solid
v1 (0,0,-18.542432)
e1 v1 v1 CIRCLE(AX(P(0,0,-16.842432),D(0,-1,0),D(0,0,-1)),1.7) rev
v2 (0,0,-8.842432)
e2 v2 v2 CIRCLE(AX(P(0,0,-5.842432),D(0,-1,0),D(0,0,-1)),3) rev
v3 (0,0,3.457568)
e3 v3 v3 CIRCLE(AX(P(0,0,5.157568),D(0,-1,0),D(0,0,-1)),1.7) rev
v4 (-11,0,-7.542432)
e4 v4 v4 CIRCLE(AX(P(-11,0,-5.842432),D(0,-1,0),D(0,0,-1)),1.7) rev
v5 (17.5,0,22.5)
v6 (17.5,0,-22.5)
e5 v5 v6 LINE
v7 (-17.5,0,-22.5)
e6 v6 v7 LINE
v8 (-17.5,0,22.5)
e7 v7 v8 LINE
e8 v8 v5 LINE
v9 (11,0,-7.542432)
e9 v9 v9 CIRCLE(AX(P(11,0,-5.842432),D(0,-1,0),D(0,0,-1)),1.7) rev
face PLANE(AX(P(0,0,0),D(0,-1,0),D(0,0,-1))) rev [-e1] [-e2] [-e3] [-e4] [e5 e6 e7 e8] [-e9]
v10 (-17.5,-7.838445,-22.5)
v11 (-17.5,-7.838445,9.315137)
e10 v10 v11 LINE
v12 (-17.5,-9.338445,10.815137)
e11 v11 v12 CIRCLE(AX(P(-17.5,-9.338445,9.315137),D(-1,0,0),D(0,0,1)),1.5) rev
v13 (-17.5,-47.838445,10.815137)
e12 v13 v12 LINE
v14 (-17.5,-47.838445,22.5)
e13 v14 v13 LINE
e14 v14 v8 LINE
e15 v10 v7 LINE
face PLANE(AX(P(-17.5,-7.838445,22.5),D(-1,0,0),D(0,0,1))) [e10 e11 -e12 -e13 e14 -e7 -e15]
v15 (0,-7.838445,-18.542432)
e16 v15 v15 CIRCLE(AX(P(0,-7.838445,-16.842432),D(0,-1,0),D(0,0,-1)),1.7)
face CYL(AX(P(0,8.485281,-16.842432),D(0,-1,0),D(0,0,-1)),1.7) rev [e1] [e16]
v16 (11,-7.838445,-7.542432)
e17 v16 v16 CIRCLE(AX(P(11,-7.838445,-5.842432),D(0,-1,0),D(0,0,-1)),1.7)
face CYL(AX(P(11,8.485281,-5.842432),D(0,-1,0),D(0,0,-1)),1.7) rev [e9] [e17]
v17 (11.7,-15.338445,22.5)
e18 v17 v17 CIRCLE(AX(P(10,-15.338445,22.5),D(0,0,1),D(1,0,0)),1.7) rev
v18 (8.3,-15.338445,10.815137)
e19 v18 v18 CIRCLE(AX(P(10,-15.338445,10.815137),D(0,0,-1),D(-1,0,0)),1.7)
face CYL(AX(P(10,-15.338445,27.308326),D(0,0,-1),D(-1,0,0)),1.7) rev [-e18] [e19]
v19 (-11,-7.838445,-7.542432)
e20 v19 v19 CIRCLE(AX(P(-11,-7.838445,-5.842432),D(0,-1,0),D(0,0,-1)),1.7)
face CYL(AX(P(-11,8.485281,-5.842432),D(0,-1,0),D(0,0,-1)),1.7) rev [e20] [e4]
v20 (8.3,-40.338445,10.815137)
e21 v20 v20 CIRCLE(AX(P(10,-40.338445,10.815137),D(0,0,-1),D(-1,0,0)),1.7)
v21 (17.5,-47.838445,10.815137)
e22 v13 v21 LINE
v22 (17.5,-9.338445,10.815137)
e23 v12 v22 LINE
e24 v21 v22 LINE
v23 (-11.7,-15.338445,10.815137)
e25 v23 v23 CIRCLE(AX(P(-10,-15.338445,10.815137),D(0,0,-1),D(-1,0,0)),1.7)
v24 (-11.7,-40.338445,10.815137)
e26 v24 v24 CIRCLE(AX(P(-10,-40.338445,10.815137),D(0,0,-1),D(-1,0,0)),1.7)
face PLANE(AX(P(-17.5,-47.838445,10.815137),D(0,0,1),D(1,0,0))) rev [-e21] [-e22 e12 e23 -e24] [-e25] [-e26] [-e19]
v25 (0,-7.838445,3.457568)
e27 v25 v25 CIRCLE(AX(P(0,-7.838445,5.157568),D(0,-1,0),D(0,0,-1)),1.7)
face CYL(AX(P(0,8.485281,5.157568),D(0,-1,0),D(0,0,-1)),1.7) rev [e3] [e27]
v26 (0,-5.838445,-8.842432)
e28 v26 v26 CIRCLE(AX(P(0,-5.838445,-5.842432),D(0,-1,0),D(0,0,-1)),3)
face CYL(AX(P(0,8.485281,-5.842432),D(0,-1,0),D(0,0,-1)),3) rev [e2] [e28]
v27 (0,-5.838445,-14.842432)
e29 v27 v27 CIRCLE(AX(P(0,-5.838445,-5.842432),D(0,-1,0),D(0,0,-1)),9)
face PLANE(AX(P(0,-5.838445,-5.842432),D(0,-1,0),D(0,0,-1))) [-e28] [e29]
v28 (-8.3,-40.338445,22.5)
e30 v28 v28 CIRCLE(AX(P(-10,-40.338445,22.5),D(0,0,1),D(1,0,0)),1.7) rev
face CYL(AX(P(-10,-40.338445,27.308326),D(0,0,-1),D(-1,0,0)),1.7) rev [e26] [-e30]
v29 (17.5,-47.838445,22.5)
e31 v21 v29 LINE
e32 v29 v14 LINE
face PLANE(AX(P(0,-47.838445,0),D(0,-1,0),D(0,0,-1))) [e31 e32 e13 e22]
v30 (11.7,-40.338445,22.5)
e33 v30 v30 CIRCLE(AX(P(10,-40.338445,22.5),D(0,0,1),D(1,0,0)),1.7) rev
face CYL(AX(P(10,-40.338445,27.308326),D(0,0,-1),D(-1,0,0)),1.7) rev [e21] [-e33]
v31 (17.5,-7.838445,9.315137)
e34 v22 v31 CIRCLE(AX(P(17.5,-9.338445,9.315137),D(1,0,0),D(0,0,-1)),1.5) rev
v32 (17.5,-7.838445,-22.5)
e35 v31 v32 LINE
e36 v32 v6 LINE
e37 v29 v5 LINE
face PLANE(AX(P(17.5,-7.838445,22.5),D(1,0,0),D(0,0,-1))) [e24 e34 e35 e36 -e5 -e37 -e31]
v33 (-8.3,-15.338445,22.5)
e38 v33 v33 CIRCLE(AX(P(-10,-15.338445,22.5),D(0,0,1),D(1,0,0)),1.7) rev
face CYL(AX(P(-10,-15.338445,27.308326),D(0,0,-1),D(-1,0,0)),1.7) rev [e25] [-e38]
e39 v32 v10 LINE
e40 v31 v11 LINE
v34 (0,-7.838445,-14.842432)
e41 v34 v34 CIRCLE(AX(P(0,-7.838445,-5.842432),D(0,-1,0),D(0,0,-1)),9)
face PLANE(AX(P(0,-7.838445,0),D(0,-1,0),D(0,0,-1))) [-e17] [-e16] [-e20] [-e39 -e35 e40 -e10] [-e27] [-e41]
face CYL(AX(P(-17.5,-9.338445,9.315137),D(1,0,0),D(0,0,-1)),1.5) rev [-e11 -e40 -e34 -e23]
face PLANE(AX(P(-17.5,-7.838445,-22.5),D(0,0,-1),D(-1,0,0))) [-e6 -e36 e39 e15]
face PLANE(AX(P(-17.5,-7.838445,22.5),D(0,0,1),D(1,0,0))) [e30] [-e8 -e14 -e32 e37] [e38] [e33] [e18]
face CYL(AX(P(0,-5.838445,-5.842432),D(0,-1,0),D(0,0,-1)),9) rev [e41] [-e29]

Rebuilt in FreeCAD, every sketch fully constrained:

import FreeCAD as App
import Part
import Sketcher

V = App.Vector
Q = App.Units.Quantity


def edges_at(feature, points):
    """Names of the edges that pass closest to the given points."""
    edges = feature.Shape.Edges
    near = lambda p: min(range(len(edges)), key=lambda i: edges[i].distToShape(Part.Vertex(*p))[0])
    return sorted({f"Edge{near(p) + 1}" for p in points})

doc = App.newDocument("Part")
body = doc.addObject("PartDesign::Body", "Body")

sketch1 = body.newObject("Sketcher::SketchObject", "Sketch")
sketch1.AttachmentSupport = (doc.getObject("XZ_Plane"), [""])
sketch1.MapMode = "FlatFace"
sketch1.addGeometry([
    Part.LineSegment(V(-17.5, -22.5, 0), V(-17.5, 22.5, 0)),
    Part.LineSegment(V(-17.5, 22.5, 0), V(17.5, 22.5, 0)),
    Part.LineSegment(V(17.5, 22.5, 0), V(17.5, -22.5, 0)),
    Part.LineSegment(V(17.5, -22.5, 0), V(-17.5, -22.5, 0)),
], False)
sketch1.addConstraint([
    Sketcher.Constraint("Coincident", 0, 2, 1, 1),
    Sketcher.Constraint("Coincident", 1, 2, 2, 1),
    Sketcher.Constraint("Coincident", 2, 2, 3, 1),
    Sketcher.Constraint("Coincident", 3, 2, 0, 1),
    Sketcher.Constraint("Vertical", 0),
    Sketcher.Constraint("Horizontal", 1),
    Sketcher.Constraint("Vertical", 2),
    Sketcher.Constraint("Horizontal", 3),
    Sketcher.Constraint("Symmetric", 0, 2, 2, 2, -1, 1),
    Sketcher.Constraint("DistanceX", 1, 1, 1, 2, Q("35 mm")),
    Sketcher.Constraint("DistanceY", 0, 1, 0, 2, Q("45 mm")),
])
pad1 = body.newObject("PartDesign::Pad", "Pad")
pad1.Profile = sketch1
pad1.Length = 7.838445

sketch2 = body.newObject("Sketcher::SketchObject", "Sketch001")
sketch2.AttachmentSupport = (doc.getObject("XZ_Plane"), [""])
sketch2.MapMode = "FlatFace"
sketch2.AttachmentOffset = App.Placement(V(0, 0, 7.838445), App.Rotation())
sketch2.addGeometry([
    Part.LineSegment(V(-17.5, 22.5, 0), V(-17.5, 10.815137, 0)),
    Part.LineSegment(V(-17.5, 10.815137, 0), V(17.5, 10.815137, 0)),
    Part.LineSegment(V(17.5, 10.815137, 0), V(17.5, 22.5, 0)),
    Part.LineSegment(V(17.5, 22.5, 0), V(-17.5, 22.5, 0)),
], False)
sketch2.addConstraint([
    Sketcher.Constraint("Coincident", 0, 2, 1, 1),
    Sketcher.Constraint("Coincident", 1, 2, 2, 1),
    Sketcher.Constraint("Coincident", 2, 2, 3, 1),
    Sketcher.Constraint("Coincident", 3, 2, 0, 1),
    Sketcher.Constraint("Vertical", 0),
    Sketcher.Constraint("Horizontal", 1),
    Sketcher.Constraint("Vertical", 2),
    Sketcher.Constraint("Horizontal", 3),
    Sketcher.Constraint("DistanceX", 1, 1, 1, 2, Q("35 mm")),
    Sketcher.Constraint("DistanceX", 0, 2, -1, 1, Q("17.5 mm")),
    Sketcher.Constraint("DistanceY", -1, 1, 2, 2, Q("22.5 mm")),
    Sketcher.Constraint("DistanceY", 0, 2, 0, 1, Q("11.684863 mm")),
])
pad2 = body.newObject("PartDesign::Pad", "Pad001")
pad2.Profile = sketch2
pad2.Length = 40

sketch3 = body.newObject("Sketcher::SketchObject", "Sketch002")
sketch3.AttachmentSupport = (doc.getObject("XZ_Plane"), [""])
sketch3.MapMode = "FlatFace"
sketch3.AttachmentOffset = App.Placement(V(0, 0, 7.838445), App.Rotation())
sketch3.addGeometry(Part.Circle(V(0, -5.842432, 0), V(0, 0, 1), 9), False)
sketch3.addConstraint([
    Sketcher.Constraint("PointOnObject", 0, 3, -2),
    Sketcher.Constraint("Diameter", 0, Q("18 mm")),
    Sketcher.Constraint("DistanceY", 0, 3, -1, 1, Q("5.842432 mm")),
])
pocket1 = body.newObject("PartDesign::Pocket", "Pocket")
pocket1.Profile = sketch3
pocket1.Length = 2

sketch4 = body.newObject("Sketcher::SketchObject", "Sketch003")
sketch4.AttachmentSupport = (doc.getObject("XZ_Plane"), [""])
sketch4.MapMode = "FlatFace"
sketch4.AttachmentOffset = App.Placement(V(0, 0, 7.838445), App.Rotation())
sketch4.addGeometry([
    Part.Circle(V(0, -5.842432, 0), V(0, 0, 1), 3),
    Part.Circle(V(0, 5.157568, 0), V(0, 0, 1), 1.7),
    Part.Circle(V(11, -5.842432, 0), V(0, 0, 1), 1.7),
    Part.Circle(V(0, -16.842432, 0), V(0, 0, 1), 1.7),
    Part.Circle(V(-11, -5.842432, 0), V(0, 0, 1), 1.7),
], False)
sketch4.addConstraint([
    Sketcher.Constraint("Equal", 1, 2),
    Sketcher.Constraint("Equal", 2, 3),
    Sketcher.Constraint("Equal", 3, 4),
    Sketcher.Constraint("Symmetric", 2, 3, 4, 3, -2),
    Sketcher.Constraint("PointOnObject", 0, 3, -2),
    Sketcher.Constraint("PointOnObject", 1, 3, -2),
    Sketcher.Constraint("PointOnObject", 3, 3, -2),
    Sketcher.Constraint("Horizontal", 0, 3, 2, 3),
    Sketcher.Constraint("Diameter", 0, Q("6 mm")),
    Sketcher.Constraint("Diameter", 1, Q("3.4 mm")),
    Sketcher.Constraint("DistanceX", -1, 1, 2, 3, Q("11 mm")),
    Sketcher.Constraint("DistanceY", 0, 3, 1, 3, Q("11 mm")),
    Sketcher.Constraint("DistanceY", 3, 3, 0, 3, Q("11 mm")),
    Sketcher.Constraint("DistanceY", 0, 3, -1, 1, Q("5.842432 mm")),
])
pocket2 = body.newObject("PartDesign::Pocket", "Pocket001")
pocket2.Profile = sketch4
pocket2.Length = 7.838445

sketch5 = body.newObject("Sketcher::SketchObject", "Sketch004")
sketch5.AttachmentSupport = (doc.getObject("XY_Plane"), [""])
sketch5.MapMode = "FlatFace"
sketch5.AttachmentOffset = App.Placement(V(0, 0, 10.815137), App.Rotation())
sketch5.addGeometry([
    Part.Circle(V(10, -40.338445, 0), V(0, 0, 1), 1.7),
    Part.Circle(V(-10, -40.338445, 0), V(0, 0, 1), 1.7),
    Part.Circle(V(10, -15.338445, 0), V(0, 0, 1), 1.7),
    Part.Circle(V(-10, -15.338445, 0), V(0, 0, 1), 1.7),
], False)
sketch5.addConstraint([
    Sketcher.Constraint("Equal", 0, 1),
    Sketcher.Constraint("Equal", 1, 2),
    Sketcher.Constraint("Equal", 2, 3),
    Sketcher.Constraint("Symmetric", 0, 3, 1, 3, -2),
    Sketcher.Constraint("Symmetric", 2, 3, 3, 3, -2),
    Sketcher.Constraint("Vertical", 0, 3, 2, 3),
    Sketcher.Constraint("Diameter", 0, Q("3.4 mm")),
    Sketcher.Constraint("DistanceX", -1, 1, 0, 3, Q("10 mm")),
    Sketcher.Constraint("DistanceY", 0, 3, 2, 3, Q("25 mm")),
    Sketcher.Constraint("DistanceY", 0, 3, -1, 1, Q("40.338445 mm")),
])
pocket3 = body.newObject("PartDesign::Pocket", "Pocket002")
pocket3.Profile = sketch5
pocket3.Length = 11.684863
pocket3.Reversed = True
doc.recompute()

fillet = body.newObject("PartDesign::Fillet", "Fillet")
fillet.Base = (pocket3, edges_at(pocket3, [(0, -7.838, 10.815)]))
fillet.Radius = 1.5

doc.recompute()
